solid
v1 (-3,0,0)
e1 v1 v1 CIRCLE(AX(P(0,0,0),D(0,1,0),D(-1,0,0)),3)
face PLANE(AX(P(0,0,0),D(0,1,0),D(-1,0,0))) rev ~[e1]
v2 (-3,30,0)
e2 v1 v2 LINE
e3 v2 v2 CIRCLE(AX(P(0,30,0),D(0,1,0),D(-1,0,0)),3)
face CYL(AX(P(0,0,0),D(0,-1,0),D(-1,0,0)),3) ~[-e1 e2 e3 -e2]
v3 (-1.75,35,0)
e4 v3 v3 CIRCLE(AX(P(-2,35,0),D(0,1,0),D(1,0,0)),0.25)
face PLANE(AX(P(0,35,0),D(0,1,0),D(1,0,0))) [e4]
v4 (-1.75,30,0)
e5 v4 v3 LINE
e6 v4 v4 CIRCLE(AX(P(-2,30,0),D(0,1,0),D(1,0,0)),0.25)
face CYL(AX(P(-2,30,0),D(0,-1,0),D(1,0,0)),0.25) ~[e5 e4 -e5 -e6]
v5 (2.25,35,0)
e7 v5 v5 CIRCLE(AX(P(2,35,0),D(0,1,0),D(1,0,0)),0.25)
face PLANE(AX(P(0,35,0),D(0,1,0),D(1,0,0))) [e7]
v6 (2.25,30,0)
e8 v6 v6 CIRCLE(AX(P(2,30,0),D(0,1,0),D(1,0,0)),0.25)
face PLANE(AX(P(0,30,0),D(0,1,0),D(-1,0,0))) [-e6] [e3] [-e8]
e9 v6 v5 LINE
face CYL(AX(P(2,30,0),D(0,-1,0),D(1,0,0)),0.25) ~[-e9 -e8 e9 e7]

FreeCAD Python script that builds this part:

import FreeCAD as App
import Part
import Sketcher

V = App.Vector

doc = App.newDocument("Part")
body = doc.addObject("PartDesign::Body", "Body")

# Sketch on XZ plane
sketch1 = body.newObject("Sketcher::SketchObject", "Sketch")
sketch1.AttachmentSupport = (doc.getObject("XZ_Plane"), [""])
sketch1.MapMode = "FlatFace"
sketch1.addGeometry(Part.Circle(V(0, 0, 0), V(0, 0, 1), 3), False)
sketch1.addConstraint([
    Sketcher.Constraint("Coincident", 0, 3, -1, 1),
    Sketcher.Constraint("Diameter", 0, 6.0),
])
pad1 = body.newObject("PartDesign::Pad", "Pad")
pad1.Profile = sketch1
pad1.Length = 30
pad1.Reversed = True

# Sketch on XZ plane
sketch2 = body.newObject("Sketcher::SketchObject", "Sketch001")
sketch2.AttachmentSupport = (doc.getObject("XZ_Plane"), [""])
sketch2.MapMode = "FlatFace"
sketch2.AttachmentOffset = App.Placement(V(0, 0, -30), App.Rotation())
sketch2.addGeometry([
    Part.Circle(V(-2, 0, 0), V(0, 0, 1), 0.25),
    Part.Circle(V(2, 0, 0), V(0, 0, 1), 0.25),
], False)
sketch2.addConstraint([
    Sketcher.Constraint("Equal", 0, 1),
    Sketcher.Constraint("Symmetric", 0, 3, 1, 3, -1, 1),
    Sketcher.Constraint("PointOnObject", 0, 3, -1),
    Sketcher.Constraint("Diameter", 0, 0.5),
    Sketcher.Constraint("DistanceX", 0, 3, -1, 1, 2.0),
])
pad2 = body.newObject("PartDesign::Pad", "Pad001")
pad2.Profile = sketch2
pad2.Length = 5
pad2.Reversed = True

doc.recompute()
